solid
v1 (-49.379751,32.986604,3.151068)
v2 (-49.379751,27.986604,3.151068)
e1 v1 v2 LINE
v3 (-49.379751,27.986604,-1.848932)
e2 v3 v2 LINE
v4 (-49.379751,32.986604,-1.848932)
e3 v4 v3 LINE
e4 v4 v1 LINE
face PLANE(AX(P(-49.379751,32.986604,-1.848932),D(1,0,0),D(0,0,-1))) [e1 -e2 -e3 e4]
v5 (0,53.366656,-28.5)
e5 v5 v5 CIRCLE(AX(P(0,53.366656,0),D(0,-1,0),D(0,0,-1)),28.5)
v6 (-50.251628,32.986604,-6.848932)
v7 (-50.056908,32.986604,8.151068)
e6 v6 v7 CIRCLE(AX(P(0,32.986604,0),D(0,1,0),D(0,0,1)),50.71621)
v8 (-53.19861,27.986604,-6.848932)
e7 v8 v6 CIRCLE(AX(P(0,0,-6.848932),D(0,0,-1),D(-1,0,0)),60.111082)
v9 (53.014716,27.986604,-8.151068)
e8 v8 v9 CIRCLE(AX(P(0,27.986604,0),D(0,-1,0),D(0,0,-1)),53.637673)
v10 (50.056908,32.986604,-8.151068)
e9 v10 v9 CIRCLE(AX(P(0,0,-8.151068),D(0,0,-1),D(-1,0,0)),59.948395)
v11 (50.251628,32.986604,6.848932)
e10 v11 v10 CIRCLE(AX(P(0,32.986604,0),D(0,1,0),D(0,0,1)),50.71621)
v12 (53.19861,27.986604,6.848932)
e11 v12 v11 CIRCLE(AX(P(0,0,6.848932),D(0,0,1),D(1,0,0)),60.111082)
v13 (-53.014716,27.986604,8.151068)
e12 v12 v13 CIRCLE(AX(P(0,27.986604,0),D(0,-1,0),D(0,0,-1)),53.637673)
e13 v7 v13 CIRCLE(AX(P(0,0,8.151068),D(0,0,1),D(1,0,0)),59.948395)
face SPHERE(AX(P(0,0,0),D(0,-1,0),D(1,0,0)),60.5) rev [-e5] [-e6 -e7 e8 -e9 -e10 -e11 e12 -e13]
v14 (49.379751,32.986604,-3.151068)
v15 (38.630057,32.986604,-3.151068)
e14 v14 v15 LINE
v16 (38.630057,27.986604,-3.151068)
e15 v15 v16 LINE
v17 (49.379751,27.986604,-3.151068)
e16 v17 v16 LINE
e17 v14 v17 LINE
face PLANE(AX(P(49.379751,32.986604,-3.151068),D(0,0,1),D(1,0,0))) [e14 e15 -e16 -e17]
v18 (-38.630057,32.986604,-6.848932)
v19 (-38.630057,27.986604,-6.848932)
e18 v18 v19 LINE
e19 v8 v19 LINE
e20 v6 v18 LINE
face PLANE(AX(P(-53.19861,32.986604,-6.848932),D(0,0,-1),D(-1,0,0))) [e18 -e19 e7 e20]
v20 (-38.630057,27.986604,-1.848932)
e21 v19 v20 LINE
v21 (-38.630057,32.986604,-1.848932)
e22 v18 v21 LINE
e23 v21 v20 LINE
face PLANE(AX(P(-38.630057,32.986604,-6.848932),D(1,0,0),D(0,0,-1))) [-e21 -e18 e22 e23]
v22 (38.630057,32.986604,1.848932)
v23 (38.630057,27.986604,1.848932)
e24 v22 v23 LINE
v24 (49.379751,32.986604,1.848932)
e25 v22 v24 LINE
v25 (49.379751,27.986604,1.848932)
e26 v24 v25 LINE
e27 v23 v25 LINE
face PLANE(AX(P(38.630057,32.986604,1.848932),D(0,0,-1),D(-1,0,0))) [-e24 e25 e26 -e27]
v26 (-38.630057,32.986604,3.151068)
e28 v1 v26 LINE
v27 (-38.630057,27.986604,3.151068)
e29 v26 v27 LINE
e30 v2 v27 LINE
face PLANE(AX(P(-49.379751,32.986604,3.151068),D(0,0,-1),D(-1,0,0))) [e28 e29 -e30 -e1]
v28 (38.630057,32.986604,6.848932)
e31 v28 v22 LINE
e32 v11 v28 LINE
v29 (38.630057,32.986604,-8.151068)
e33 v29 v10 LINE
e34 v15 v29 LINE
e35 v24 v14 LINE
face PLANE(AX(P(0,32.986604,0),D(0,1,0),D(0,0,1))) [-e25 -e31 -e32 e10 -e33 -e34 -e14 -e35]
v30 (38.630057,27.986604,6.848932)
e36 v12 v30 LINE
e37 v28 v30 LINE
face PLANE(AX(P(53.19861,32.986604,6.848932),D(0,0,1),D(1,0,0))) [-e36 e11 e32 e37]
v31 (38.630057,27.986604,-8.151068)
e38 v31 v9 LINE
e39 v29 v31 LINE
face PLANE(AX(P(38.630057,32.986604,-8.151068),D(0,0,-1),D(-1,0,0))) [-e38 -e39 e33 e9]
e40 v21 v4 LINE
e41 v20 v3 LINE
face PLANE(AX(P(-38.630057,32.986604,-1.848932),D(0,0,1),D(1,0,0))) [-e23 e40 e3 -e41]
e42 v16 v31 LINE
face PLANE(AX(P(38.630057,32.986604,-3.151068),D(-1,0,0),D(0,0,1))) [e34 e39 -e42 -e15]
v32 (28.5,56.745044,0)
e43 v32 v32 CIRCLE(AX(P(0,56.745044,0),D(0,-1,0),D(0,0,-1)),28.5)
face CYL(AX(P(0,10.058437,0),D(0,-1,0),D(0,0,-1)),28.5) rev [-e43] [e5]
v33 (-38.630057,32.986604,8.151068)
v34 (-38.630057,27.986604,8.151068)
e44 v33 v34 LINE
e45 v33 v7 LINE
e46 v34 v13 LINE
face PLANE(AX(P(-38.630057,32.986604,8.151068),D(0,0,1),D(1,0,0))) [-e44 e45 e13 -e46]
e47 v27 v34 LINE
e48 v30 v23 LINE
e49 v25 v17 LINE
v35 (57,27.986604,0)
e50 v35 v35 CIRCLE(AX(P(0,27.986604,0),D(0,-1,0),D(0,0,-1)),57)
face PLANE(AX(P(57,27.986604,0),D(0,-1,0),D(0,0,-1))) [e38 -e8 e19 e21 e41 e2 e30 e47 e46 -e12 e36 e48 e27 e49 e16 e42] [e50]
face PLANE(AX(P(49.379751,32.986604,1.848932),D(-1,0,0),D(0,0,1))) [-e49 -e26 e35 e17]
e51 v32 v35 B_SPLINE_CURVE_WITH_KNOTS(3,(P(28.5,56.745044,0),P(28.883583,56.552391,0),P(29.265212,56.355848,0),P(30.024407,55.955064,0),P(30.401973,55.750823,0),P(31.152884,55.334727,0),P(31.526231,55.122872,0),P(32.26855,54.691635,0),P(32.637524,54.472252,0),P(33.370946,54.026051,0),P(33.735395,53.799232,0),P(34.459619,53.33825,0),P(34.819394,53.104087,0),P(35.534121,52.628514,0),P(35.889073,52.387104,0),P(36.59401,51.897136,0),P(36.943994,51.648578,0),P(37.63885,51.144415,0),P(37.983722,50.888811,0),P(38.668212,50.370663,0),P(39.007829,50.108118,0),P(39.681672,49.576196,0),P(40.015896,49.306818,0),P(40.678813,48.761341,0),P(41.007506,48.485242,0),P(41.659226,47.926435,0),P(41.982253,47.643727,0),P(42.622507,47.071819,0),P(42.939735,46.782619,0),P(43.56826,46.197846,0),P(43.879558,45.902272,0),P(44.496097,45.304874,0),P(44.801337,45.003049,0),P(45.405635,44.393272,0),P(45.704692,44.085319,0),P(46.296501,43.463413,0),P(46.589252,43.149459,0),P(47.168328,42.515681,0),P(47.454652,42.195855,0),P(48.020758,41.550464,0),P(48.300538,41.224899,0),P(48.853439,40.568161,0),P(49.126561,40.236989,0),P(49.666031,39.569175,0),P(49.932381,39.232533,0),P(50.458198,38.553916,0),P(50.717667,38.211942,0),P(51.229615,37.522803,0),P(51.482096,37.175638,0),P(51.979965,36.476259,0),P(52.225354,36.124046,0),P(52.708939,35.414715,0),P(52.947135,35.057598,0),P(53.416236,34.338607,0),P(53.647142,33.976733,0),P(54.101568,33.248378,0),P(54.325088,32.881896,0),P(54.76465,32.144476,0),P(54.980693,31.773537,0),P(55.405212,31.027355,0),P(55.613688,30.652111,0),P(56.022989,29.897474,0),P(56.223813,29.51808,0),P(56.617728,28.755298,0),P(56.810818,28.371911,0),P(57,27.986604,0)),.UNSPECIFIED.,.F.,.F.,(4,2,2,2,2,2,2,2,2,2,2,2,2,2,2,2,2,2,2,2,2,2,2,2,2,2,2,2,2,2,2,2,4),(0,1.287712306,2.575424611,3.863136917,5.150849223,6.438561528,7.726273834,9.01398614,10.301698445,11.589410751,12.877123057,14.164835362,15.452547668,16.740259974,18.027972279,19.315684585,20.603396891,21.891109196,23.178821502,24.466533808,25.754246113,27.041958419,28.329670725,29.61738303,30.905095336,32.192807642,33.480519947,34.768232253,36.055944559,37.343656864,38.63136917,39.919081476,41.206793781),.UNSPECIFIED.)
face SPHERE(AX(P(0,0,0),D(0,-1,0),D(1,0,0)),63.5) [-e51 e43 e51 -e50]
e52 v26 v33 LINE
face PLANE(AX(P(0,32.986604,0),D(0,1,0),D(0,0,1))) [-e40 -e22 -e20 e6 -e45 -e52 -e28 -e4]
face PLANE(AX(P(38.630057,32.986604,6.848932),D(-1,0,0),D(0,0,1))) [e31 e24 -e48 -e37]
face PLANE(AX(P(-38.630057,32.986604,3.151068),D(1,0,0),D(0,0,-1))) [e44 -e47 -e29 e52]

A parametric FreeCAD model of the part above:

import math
import FreeCAD as App
import Part
import Sketcher
from FreeCAD import Vector

doc = App.newDocument("Part")
body = doc.addObject("PartDesign::Body", "Body")

sketch1 = body.newObject("Sketcher::SketchObject", "Sketch")
sketch1.AttachmentSupport = (doc.getObject("XY_Plane"), [""])
sketch1.MapMode = "FlatFace"
sketch1.addGeometry([
    Part.LineSegment(Vector(53.637673, 27.986604, 0), Vector(57, 27.986604, 0)),
    Part.ArcOfCircle(Part.Circle(Vector(0, 0, 0), Vector(0, 0, 1), 63.5), math.radians(26.150718), math.radians(63.332069)),
    Part.LineSegment(Vector(28.5, 56.745044, 0), Vector(28.5, 53.366656, 0)),
    Part.ArcOfCircle(Part.Circle(Vector(0, 0, 0), Vector(0, 0, 1), 60.5), math.radians(27.554265), math.radians(61.89594)),
], False)
sketch1.addConstraint([
    Sketcher.Constraint("Coincident", 0, 2, 1, 1),
    Sketcher.Constraint("Coincident", 1, 2, 2, 1),
    Sketcher.Constraint("Coincident", 2, 2, 3, 2),
    Sketcher.Constraint("Coincident", 3, 1, 0, 1),
    Sketcher.Constraint("Horizontal", 0),
    Sketcher.Constraint("Vertical", 2),
    Sketcher.Constraint("Coincident", 1, 3, -1, 1),
    Sketcher.Constraint("Coincident", 3, 3, -1, 1),
    Sketcher.Constraint("Radius", 1, 63.5),
    Sketcher.Constraint("Radius", 3, 60.5),
    Sketcher.Constraint("DistanceX", -1, 1, 0, 2, 57.0),
    Sketcher.Constraint("DistanceX", -1, 1, 1, 2, 28.5),
])
revolution = body.newObject("PartDesign::Revolution", "Revolution")
revolution.Profile = sketch1
revolution.ReferenceAxis = (sketch1, ["V_Axis"])
revolution.Angle = 360

sketch2 = body.newObject("Sketcher::SketchObject", "Sketch001")
sketch2.AttachmentSupport = (doc.getObject("XZ_Plane"), [""])
sketch2.MapMode = "FlatFace"
sketch2.AttachmentOffset = App.Placement(Vector(0, 0, -27.986604), App.Rotation())
sketch2.addGeometry([
    Part.LineSegment(Vector(38.630057, 1.848932, 0), Vector(49.379751, 1.848932, 0)),
    Part.LineSegment(Vector(49.379751, 1.848932, 0), Vector(49.379751, -3.151068, 0)),
    Part.LineSegment(Vector(49.379751, -3.151068, 0), Vector(38.630057, -3.151068, 0)),
    Part.LineSegment(Vector(38.630057, -3.151068, 0), Vector(38.630057, -8.151068, 0)),
    Part.LineSegment(Vector(38.630057, -8.151068, 0), Vector(53.014716, -8.151068, 0)),
    Part.ArcOfCircle(Part.Circle(Vector(0, 0, 0), Vector(0, 0, 1), 53.637673), math.radians(-8.740839), math.radians(7.336059)),
    Part.LineSegment(Vector(53.19861, 6.848932, 0), Vector(38.630057, 6.848932, 0)),
    Part.LineSegment(Vector(38.630057, 6.848932, 0), Vector(38.630057, 1.848932, 0)),
    Part.LineSegment(Vector(-38.630057, 8.151068, 0), Vector(-53.014716, 8.151068, 0)),
    Part.ArcOfCircle(Part.Circle(Vector(0, 0, 0), Vector(0, 0, 1), 53.637673), math.radians(171.259161), math.radians(187.336059)),
    Part.LineSegment(Vector(-53.19861, -6.848932, 0), Vector(-38.630057, -6.848932, 0)),
    Part.LineSegment(Vector(-38.630057, -6.848932, 0), Vector(-38.630057, -1.848932, 0)),
    Part.LineSegment(Vector(-38.630057, -1.848932, 0), Vector(-49.379751, -1.848932, 0)),
    Part.LineSegment(Vector(-49.379751, -1.848932, 0), Vector(-49.379751, 3.151068, 0)),
    Part.LineSegment(Vector(-49.379751, 3.151068, 0), Vector(-38.630057, 3.151068, 0)),
    Part.LineSegment(Vector(-38.630057, 3.151068, 0), Vector(-38.630057, 8.151068, 0)),
], False)
sketch2.addConstraint([
    Sketcher.Constraint("Coincident", 0, 2, 1, 1),
    Sketcher.Constraint("Coincident", 1, 2, 2, 1),
    Sketcher.Constraint("Coincident", 2, 2, 3, 1),
    Sketcher.Constraint("Coincident", 3, 2, 4, 1),
    Sketcher.Constraint("Coincident", 4, 2, 5, 1),
    Sketcher.Constraint("Coincident", 5, 2, 6, 1),
    Sketcher.Constraint("Coincident", 6, 2, 7, 1),
    Sketcher.Constraint("Coincident", 7, 2, 0, 1),
    Sketcher.Constraint("Coincident", 8, 2, 9, 1),
    Sketcher.Constraint("Coincident", 9, 2, 10, 1),
    Sketcher.Constraint("Coincident", 10, 2, 11, 1),
    Sketcher.Constraint("Coincident", 11, 2, 12, 1),
    Sketcher.Constraint("Coincident", 12, 2, 13, 1),
    Sketcher.Constraint("Coincident", 13, 2, 14, 1),
    Sketcher.Constraint("Coincident", 14, 2, 15, 1),
    Sketcher.Constraint("Coincident", 15, 2, 8, 1),
    Sketcher.Constraint("Horizontal", 0),
    Sketcher.Constraint("Vertical", 1),
    Sketcher.Constraint("Horizontal", 2),
    Sketcher.Constraint("Vertical", 3),
    Sketcher.Constraint("Horizontal", 4),
    Sketcher.Constraint("Horizontal", 6),
    Sketcher.Constraint("Vertical", 7),
    Sketcher.Constraint("Horizontal", 8),
    Sketcher.Constraint("Horizontal", 10),
    Sketcher.Constraint("Vertical", 11),
    Sketcher.Constraint("Horizontal", 12),
    Sketcher.Constraint("Vertical", 13),
    Sketcher.Constraint("Horizontal", 14),
    Sketcher.Constraint("Vertical", 15),
    Sketcher.Constraint("Coincident", 5, 3, -1, 1),
    Sketcher.Constraint("Coincident", 9, 3, -1, 1),
    Sketcher.Constraint("Equal", 5, 9),
    Sketcher.Constraint("Symmetric", 6, 2, 10, 2, -1, 1),
    Sketcher.Constraint("Symmetric", 0, 2, 12, 2, -1, 1),
    Sketcher.Constraint("Symmetric", 2, 2, 14, 2, -1, 1),
    Sketcher.Constraint("Vertical", 3, 2, 6, 2),
    Sketcher.Constraint("Equal", 4, 8),
    Sketcher.Constraint("Equal", 1, 3),
    Sketcher.Constraint("Equal", 3, 7),
    Sketcher.Constraint("DistanceY", 1, 2, 1, 1, 5.0),
    Sketcher.Constraint("Radius", 5, 53.637673),
    Sketcher.Constraint("DistanceX", 4, 1, 4, 2, 14.384659),
    Sketcher.Constraint("DistanceX", 0, 1, 0, 2, 10.749694),
    Sketcher.Constraint("DistanceX", 6, 2, 6, 1, 14.568553),
])
pad1 = body.newObject("PartDesign::Pad", "Pad")
pad1.Profile = sketch2
pad1.Length = 5
pad1.Reversed = True

doc.recompute()
